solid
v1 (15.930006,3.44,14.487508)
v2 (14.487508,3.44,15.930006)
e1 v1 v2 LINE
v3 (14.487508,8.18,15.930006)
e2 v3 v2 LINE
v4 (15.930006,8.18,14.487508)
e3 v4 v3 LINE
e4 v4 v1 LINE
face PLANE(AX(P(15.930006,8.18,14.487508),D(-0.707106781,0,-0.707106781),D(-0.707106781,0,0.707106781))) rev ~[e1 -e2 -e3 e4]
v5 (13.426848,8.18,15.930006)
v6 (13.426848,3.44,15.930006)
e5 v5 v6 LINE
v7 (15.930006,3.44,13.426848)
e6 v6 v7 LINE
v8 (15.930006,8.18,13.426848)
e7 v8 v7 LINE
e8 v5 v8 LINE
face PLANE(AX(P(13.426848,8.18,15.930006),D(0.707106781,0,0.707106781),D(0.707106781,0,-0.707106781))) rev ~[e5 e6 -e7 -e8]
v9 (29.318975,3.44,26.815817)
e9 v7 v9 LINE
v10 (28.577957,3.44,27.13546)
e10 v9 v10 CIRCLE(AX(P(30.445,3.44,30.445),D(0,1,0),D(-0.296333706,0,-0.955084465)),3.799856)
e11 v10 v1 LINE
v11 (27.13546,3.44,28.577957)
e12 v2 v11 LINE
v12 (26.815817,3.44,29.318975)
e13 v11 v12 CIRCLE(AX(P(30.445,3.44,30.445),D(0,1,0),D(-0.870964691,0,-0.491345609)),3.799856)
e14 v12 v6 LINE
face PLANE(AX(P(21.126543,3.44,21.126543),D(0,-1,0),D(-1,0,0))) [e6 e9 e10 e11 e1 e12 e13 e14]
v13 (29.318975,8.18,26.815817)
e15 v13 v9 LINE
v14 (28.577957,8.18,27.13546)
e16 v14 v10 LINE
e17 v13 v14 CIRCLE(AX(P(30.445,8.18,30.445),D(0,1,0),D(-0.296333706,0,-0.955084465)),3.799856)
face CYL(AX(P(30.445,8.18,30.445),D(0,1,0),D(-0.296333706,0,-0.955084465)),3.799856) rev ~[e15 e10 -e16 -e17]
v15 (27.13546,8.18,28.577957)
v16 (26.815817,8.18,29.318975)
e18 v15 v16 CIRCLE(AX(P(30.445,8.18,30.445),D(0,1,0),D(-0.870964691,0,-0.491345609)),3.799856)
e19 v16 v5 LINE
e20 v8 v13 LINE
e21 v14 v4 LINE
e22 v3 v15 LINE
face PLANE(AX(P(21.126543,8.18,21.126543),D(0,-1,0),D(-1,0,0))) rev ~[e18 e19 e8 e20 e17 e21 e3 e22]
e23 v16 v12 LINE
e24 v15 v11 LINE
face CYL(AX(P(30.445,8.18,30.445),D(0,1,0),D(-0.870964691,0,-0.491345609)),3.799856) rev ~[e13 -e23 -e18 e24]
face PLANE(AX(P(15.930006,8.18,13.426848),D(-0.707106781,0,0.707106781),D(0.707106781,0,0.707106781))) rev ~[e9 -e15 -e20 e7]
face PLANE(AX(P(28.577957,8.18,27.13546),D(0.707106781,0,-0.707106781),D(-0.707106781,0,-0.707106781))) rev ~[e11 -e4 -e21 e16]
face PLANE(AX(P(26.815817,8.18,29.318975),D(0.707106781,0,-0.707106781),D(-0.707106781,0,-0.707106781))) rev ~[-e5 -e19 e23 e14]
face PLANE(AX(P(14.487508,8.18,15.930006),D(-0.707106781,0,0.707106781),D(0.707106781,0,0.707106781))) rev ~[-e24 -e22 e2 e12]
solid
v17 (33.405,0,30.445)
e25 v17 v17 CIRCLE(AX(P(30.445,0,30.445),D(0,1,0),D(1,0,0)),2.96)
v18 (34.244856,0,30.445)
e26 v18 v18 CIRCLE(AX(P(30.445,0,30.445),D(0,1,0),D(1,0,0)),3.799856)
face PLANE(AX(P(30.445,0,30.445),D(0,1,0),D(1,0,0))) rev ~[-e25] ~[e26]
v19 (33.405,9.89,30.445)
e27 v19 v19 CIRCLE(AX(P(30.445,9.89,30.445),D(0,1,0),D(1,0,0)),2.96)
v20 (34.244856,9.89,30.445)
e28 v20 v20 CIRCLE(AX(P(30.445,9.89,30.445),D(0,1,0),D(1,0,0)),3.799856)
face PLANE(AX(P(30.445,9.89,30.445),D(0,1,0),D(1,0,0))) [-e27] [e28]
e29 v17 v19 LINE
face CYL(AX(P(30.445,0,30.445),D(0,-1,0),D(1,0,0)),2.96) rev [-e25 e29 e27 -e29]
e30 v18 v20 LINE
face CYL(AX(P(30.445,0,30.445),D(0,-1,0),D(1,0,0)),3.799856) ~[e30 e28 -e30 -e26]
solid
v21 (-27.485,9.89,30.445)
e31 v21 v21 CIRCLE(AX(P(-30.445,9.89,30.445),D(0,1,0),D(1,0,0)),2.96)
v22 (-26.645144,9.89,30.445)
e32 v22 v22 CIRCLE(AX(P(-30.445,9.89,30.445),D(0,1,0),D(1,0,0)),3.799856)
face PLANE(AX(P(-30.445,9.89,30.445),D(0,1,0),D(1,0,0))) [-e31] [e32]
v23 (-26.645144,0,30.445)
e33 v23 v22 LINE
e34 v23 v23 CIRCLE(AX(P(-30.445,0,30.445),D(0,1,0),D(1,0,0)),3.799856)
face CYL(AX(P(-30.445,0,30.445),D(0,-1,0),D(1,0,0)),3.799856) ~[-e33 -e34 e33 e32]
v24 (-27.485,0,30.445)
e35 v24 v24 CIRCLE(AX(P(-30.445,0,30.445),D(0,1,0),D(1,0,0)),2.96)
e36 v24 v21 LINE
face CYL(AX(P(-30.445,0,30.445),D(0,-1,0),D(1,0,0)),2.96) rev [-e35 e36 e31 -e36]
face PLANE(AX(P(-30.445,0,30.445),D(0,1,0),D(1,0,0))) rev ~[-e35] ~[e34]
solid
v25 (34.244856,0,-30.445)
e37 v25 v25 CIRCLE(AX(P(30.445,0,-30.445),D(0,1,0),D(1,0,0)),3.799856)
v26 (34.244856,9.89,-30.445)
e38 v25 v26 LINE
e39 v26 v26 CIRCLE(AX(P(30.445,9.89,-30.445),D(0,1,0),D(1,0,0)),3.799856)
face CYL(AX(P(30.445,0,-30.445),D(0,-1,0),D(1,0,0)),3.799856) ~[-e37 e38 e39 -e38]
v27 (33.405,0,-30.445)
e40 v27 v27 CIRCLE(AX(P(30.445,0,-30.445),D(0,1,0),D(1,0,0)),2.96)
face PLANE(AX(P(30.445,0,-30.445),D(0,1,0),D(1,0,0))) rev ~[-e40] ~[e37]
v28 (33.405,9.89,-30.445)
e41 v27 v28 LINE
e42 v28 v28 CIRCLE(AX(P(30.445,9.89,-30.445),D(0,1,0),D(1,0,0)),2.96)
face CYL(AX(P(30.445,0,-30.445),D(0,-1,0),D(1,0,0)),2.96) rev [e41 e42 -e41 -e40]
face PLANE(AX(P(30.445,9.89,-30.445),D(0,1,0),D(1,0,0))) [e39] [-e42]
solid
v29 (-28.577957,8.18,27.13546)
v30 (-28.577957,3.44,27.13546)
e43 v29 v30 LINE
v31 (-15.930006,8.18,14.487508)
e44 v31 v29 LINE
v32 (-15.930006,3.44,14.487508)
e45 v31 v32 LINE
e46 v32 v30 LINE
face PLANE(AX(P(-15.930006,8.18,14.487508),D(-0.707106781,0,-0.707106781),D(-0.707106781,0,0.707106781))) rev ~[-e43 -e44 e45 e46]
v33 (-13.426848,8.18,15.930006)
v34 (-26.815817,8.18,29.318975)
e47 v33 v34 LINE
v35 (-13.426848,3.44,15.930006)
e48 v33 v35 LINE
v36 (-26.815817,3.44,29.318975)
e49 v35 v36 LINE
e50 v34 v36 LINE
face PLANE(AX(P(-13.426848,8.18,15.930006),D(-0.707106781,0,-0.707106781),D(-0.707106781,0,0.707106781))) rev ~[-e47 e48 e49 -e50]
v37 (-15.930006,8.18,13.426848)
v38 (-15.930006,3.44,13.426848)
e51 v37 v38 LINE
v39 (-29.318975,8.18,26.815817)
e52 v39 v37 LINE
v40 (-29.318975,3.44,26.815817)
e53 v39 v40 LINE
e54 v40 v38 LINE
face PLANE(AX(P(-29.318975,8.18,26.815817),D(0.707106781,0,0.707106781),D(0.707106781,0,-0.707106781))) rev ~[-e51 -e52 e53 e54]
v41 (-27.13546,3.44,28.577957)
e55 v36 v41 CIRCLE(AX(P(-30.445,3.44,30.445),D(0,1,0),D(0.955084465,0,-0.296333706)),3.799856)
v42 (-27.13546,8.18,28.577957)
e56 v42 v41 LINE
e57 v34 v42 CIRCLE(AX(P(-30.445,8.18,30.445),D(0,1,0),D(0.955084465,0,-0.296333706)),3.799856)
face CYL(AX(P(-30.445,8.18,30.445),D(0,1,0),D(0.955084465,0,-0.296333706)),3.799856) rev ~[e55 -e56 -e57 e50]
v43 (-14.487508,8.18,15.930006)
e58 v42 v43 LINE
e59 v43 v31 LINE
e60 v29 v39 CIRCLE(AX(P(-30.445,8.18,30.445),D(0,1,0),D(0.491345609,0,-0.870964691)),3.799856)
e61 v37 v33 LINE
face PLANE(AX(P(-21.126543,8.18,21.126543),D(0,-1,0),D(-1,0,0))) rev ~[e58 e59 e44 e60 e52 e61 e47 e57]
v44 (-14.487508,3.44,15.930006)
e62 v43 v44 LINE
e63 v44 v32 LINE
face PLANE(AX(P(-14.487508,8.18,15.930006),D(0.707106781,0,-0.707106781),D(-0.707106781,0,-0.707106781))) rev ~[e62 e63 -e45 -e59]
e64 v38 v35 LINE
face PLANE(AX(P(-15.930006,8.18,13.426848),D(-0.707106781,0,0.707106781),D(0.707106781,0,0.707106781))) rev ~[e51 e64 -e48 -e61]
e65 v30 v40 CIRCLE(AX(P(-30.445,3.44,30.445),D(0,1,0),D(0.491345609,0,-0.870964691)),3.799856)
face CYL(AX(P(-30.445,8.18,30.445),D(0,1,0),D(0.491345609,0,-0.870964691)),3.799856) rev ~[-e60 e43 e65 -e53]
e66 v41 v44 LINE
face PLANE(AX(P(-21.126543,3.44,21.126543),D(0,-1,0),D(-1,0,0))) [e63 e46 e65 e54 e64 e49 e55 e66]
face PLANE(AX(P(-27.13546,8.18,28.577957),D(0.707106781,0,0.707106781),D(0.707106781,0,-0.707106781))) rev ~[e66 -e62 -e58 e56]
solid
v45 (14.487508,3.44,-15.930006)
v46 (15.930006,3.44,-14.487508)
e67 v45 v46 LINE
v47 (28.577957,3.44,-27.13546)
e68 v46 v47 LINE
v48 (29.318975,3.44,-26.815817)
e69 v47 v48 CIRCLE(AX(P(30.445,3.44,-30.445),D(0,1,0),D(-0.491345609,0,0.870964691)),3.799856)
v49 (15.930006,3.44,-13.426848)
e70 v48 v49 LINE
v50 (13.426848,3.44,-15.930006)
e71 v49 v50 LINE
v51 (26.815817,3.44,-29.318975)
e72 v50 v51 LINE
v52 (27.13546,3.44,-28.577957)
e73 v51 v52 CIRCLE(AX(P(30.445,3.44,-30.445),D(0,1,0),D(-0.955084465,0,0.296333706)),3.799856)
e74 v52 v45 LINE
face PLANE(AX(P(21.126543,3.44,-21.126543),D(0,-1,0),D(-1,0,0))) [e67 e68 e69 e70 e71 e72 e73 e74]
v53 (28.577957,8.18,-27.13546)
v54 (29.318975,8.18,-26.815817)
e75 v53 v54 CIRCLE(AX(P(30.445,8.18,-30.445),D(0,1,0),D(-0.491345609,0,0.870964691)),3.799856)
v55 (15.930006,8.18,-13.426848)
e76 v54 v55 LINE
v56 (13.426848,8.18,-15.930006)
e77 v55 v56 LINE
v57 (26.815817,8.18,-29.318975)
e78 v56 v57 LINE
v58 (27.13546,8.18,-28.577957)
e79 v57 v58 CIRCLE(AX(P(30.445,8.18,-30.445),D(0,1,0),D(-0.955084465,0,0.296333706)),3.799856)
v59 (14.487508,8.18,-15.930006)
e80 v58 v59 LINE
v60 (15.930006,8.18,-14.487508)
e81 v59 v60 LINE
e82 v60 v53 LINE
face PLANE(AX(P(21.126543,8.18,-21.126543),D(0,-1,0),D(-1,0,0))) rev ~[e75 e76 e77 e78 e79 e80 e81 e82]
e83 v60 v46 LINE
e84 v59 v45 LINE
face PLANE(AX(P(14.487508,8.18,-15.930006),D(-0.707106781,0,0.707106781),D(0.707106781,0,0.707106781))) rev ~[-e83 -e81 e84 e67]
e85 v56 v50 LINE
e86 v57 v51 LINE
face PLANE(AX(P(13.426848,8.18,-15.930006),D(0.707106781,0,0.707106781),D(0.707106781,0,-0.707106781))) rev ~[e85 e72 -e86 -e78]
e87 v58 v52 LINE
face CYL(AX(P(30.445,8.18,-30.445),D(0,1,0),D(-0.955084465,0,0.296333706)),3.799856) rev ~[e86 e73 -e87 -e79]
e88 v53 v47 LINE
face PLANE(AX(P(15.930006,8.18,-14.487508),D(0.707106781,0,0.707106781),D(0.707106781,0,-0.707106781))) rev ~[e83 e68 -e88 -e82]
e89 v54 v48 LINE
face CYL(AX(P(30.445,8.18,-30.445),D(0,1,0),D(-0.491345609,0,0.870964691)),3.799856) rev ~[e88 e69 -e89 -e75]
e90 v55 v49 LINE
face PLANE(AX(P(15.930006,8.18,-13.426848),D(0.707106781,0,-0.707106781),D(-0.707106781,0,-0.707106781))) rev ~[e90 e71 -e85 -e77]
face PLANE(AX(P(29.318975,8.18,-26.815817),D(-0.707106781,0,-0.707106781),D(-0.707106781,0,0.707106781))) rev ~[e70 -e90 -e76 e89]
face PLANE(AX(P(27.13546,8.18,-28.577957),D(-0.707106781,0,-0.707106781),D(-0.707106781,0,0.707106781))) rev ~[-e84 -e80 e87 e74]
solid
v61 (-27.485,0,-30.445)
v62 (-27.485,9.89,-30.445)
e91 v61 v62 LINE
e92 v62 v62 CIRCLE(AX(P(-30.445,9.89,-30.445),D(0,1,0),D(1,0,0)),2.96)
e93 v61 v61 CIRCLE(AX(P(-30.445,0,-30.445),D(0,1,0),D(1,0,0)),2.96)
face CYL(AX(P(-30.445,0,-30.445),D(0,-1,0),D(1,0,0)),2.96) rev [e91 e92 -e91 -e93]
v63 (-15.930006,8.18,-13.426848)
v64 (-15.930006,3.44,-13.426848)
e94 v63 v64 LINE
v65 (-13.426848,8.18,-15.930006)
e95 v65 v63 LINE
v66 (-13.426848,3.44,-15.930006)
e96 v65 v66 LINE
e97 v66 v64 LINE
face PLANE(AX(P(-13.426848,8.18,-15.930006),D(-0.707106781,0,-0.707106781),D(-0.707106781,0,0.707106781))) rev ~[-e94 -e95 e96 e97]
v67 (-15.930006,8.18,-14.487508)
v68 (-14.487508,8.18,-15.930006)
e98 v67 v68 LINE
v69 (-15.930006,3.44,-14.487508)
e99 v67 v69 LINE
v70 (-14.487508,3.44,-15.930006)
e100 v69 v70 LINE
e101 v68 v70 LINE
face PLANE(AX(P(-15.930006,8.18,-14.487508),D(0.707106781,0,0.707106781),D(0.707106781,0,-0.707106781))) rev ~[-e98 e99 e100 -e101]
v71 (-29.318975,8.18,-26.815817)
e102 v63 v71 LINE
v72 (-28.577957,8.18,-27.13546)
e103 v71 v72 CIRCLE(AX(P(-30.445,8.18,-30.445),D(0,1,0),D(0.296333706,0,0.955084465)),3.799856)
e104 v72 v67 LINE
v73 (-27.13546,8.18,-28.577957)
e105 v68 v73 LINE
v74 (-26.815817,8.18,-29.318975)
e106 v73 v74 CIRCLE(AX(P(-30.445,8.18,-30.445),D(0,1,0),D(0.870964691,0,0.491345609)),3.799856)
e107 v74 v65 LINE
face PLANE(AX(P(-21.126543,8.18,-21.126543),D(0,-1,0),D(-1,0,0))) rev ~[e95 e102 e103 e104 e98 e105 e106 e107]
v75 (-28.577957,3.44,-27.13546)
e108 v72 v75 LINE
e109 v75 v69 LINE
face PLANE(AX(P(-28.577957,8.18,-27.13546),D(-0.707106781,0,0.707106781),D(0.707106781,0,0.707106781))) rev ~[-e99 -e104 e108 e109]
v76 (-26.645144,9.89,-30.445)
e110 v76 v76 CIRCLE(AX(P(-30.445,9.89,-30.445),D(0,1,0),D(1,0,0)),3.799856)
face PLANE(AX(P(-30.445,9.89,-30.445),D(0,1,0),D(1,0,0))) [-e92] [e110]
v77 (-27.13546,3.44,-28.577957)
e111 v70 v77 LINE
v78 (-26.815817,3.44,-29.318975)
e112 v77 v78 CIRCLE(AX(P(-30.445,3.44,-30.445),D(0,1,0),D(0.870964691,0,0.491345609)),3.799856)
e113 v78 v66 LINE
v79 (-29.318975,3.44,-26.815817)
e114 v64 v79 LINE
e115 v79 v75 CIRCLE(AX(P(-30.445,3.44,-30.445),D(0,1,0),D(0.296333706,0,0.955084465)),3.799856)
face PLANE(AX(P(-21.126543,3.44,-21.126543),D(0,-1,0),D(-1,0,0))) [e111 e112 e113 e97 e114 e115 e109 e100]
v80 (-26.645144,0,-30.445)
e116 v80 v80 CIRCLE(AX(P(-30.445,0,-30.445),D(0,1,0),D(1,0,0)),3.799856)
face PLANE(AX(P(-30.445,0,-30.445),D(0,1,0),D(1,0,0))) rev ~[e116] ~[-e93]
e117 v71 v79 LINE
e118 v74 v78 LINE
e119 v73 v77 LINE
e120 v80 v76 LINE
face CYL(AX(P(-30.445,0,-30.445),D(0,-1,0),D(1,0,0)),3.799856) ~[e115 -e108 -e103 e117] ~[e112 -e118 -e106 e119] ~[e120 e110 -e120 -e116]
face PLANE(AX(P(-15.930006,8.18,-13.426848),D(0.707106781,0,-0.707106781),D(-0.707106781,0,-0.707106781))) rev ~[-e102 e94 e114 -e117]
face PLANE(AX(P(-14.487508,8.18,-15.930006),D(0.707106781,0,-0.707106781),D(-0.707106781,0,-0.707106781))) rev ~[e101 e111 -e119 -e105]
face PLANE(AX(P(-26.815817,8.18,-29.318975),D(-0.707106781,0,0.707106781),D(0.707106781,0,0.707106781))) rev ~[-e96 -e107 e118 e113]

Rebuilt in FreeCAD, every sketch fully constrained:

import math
import FreeCAD as App
import Part
import Sketcher

V = App.Vector

doc = App.newDocument("Part")
body = doc.addObject("PartDesign::Body", "Body")

# Sketch on XZ plane
sketch1 = doc.addObject("Sketcher::SketchObject", "Sketch")
body.addObject(sketch1)
sketch1.AttachmentSupport = (doc.XZ_Plane, [""])
sketch1.MapMode = "FlatFace"
sketch1.addGeometry([
    Part.Circle(V(-30.4, 30.4, 0), V(0, 0, 1), 3.8),
    Part.Circle(V(-30.4, 30.4, 0), V(0, 0, 1), 3),
], False)
sketch1.addConstraint([
    Sketcher.Constraint("Coincident", 1, 3, 0, 3),
    Sketcher.Constraint("Diameter", 1, 5.92),
    Sketcher.Constraint("Diameter", 0, 7.599712),
    Sketcher.Constraint("DistanceX", 0, 3, -1, 1, 30.445),
    Sketcher.Constraint("DistanceY", -1, 1, 0, 3, 30.445),
])
pad1 = doc.addObject("PartDesign::Pad", "Pad")
body.addObject(pad1)
pad1.Profile = sketch1
pad1.Length = 9.89
pad1.Reversed = True
body2 = doc.addObject("PartDesign::Body", "Body001")
body2.AllowCompound = True

# Sketch on XZ plane
sketch2 = doc.addObject("Sketcher::SketchObject", "Sketch001")
body2.addObject(sketch2)
sketch2.AttachmentSupport = (doc.getObject("XZ_Plane001"), [""])
sketch2.MapMode = "FlatFace"
sketch2.addGeometry([
    Part.Circle(V(-30.4, -30.4, 0), V(0, 0, 1), 3.8),
    Part.Circle(V(-30.4, -30.4, 0), V(0, 0, 1), 3),
], False)
sketch2.addConstraint([
    Sketcher.Constraint("Coincident", 1, 3, 0, 3),
    Sketcher.Constraint("Diameter", 1, 5.92),
    Sketcher.Constraint("Diameter", 0, 7.599712),
    Sketcher.Constraint("DistanceX", 0, 3, -1, 1, 30.445),
    Sketcher.Constraint("DistanceY", 0, 3, -1, 1, 30.445),
])
pad2 = doc.addObject("PartDesign::Pad", "Pad001")
body2.addObject(pad2)
pad2.Profile = sketch2
pad2.Length = 9.89
pad2.Reversed = True

# Sketch on XZ plane
sketch3 = doc.addObject("Sketcher::SketchObject", "Sketch002")
body2.addObject(sketch3)
sketch3.AttachmentSupport = (doc.getObject("XZ_Plane001"), [""])
sketch3.MapMode = "FlatFace"
sketch3.AttachmentOffset = App.Placement(V(0, 0, -8.18), App.Rotation())
sketch3.addGeometry([
    Part.LineSegment(V(-13.4, -15.9, 0), V(-26.8, -29.3, 0)),  # 0
    Part.ArcOfCircle(Part.Circle(V(-30.4, -30.4, 0), V(0, 0, 1), 3.8), math.radians(17.24), math.radians(29.43)),  # 1
    Part.LineSegment(V(-27.1, -28.6, 0), V(-14.5, -15.9, 0)),  # 2
    Part.LineSegment(V(-14.5, -15.9, 0), V(-15.9, -14.5, 0)),  # 3
    Part.LineSegment(V(-15.9, -14.5, 0), V(-28.6, -27.1, 0)),  # 4
    Part.ArcOfCircle(Part.Circle(V(-30.4, -30.4, 0), V(0, 0, 1), 3.8), math.radians(60.57), math.radians(72.76)),  # 5
    Part.LineSegment(V(-29.3, -26.8, 0), V(-15.9, -13.4, 0)),  # 6
    Part.LineSegment(V(-15.9, -13.4, 0), V(-13.4, -15.9, 0)),  # 7
    Part.LineSegment(V(15.9, -13.4, 0), V(29.3, -26.8, 0)),  # 8
    Part.ArcOfCircle(Part.Circle(V(30.4, -30.4, 0), V(0, 0, 1), 3.8), math.radians(107.24), math.radians(119.43)),  # 9
    Part.LineSegment(V(28.6, -27.1, 0), V(15.9, -14.5, 0)),  # 10
    Part.LineSegment(V(15.9, -14.5, 0), V(14.5, -15.9, 0)),  # 11
    Part.LineSegment(V(14.5, -15.9, 0), V(27.1, -28.6, 0)),  # 12
    Part.ArcOfCircle(Part.Circle(V(30.4, -30.4, 0), V(0, 0, 1), 3.8), math.radians(150.57), math.radians(162.76)),  # 13
    Part.LineSegment(V(26.8, -29.3, 0), V(13.4, -15.9, 0)),  # 14
    Part.LineSegment(V(13.4, -15.9, 0), V(15.9, -13.4, 0)),  # 15
    Part.LineSegment(V(13.4, 15.9, 0), V(26.8, 29.3, 0)),  # 16
    Part.ArcOfCircle(Part.Circle(V(30.4, 30.4, 0), V(0, 0, 1), 3.8), math.radians(-162.76), math.radians(-150.57)),  # 17
    Part.LineSegment(V(27.1, 28.6, 0), V(14.5, 15.9, 0)),  # 18
    Part.LineSegment(V(14.5, 15.9, 0), V(15.9, 14.5, 0)),  # 19
    Part.LineSegment(V(15.9, 14.5, 0), V(28.6, 27.1, 0)),  # 20
    Part.ArcOfCircle(Part.Circle(V(30.4, 30.4, 0), V(0, 0, 1), 3.8), math.radians(-119.43), math.radians(-107.24)),  # 21
    Part.LineSegment(V(29.3, 26.8, 0), V(15.9, 13.4, 0)),  # 22
    Part.LineSegment(V(15.9, 13.4, 0), V(13.4, 15.9, 0)),  # 23
    Part.LineSegment(V(-15.9, 13.4, 0), V(-29.3, 26.8, 0)),  # 24
    Part.ArcOfCircle(Part.Circle(V(-30.4, 30.4, 0), V(0, 0, 1), 3.8), math.radians(-72.76), math.radians(-60.57)),  # 25
    Part.LineSegment(V(-28.6, 27.1, 0), V(-15.9, 14.5, 0)),  # 26
    Part.LineSegment(V(-15.9, 14.5, 0), V(-14.5, 15.9, 0)),  # 27
    Part.LineSegment(V(-14.5, 15.9, 0), V(-27.1, 28.6, 0)),  # 28
    Part.ArcOfCircle(Part.Circle(V(-30.4, 30.4, 0), V(0, 0, 1), 3.8), math.radians(-29.43), math.radians(-17.24)),  # 29
    Part.LineSegment(V(-26.8, 29.3, 0), V(-13.4, 15.9, 0)),  # 30
    Part.LineSegment(V(-13.4, 15.9, 0), V(-15.9, 13.4, 0)),  # 31
], False)
sketch3.addConstraint([
    Sketcher.Constraint("Coincident", 0, 2, 1, 1),
    Sketcher.Constraint("Coincident", 1, 2, 2, 1),
    Sketcher.Constraint("Coincident", 2, 2, 3, 1),
    Sketcher.Constraint("Coincident", 3, 2, 4, 1),
    Sketcher.Constraint("Coincident", 4, 2, 5, 1),
    Sketcher.Constraint("Coincident", 5, 2, 6, 1),
    Sketcher.Constraint("Coincident", 6, 2, 7, 1),
    Sketcher.Constraint("Coincident", 7, 2, 0, 1),
    Sketcher.Constraint("Coincident", 8, 2, 9, 1),
    Sketcher.Constraint("Coincident", 9, 2, 10, 1),
    Sketcher.Constraint("Coincident", 10, 2, 11, 1),
    Sketcher.Constraint("Coincident", 11, 2, 12, 1),
    Sketcher.Constraint("Coincident", 12, 2, 13, 1),
    Sketcher.Constraint("Coincident", 13, 2, 14, 1),
    Sketcher.Constraint("Coincident", 14, 2, 15, 1),
    Sketcher.Constraint("Coincident", 15, 2, 8, 1),
    Sketcher.Constraint("Coincident", 16, 2, 17, 1),
    Sketcher.Constraint("Coincident", 17, 2, 18, 1),
    Sketcher.Constraint("Coincident", 18, 2, 19, 1),
    Sketcher.Constraint("Coincident", 19, 2, 20, 1),
    Sketcher.Constraint("Coincident", 20, 2, 21, 1),
    Sketcher.Constraint("Coincident", 21, 2, 22, 1),
    Sketcher.Constraint("Coincident", 22, 2, 23, 1),
    Sketcher.Constraint("Coincident", 23, 2, 16, 1),
    Sketcher.Constraint("Coincident", 24, 2, 25, 1),
    Sketcher.Constraint("Coincident", 25, 2, 26, 1),
    Sketcher.Constraint("Coincident", 26, 2, 27, 1),
    Sketcher.Constraint("Coincident", 27, 2, 28, 1),
    Sketcher.Constraint("Coincident", 28, 2, 29, 1),
    Sketcher.Constraint("Coincident", 29, 2, 30, 1),
    Sketcher.Constraint("Coincident", 30, 2, 31, 1),
    Sketcher.Constraint("Coincident", 31, 2, 24, 1),
    Sketcher.Constraint("Coincident", 5, 3, 1, 3),
    Sketcher.Constraint("Coincident", 13, 3, 9, 3),
    Sketcher.Constraint("Coincident", 21, 3, 17, 3),
    Sketcher.Constraint("Coincident", 29, 3, 25, 3),
    Sketcher.Constraint("Equal", 1, 5),
    Sketcher.Constraint("Equal", 5, 9),
    Sketcher.Constraint("Equal", 9, 13),
    Sketcher.Constraint("Equal", 13, 17),
    Sketcher.Constraint("Equal", 17, 21),
    Sketcher.Constraint("Equal", 21, 25),
    Sketcher.Constraint("Equal", 25, 29),
    Sketcher.Constraint("Symmetric", 1, 3, 17, 3, -1, 1),
    Sketcher.Constraint("Symmetric", 9, 3, 25, 3, -1, 1),
    Sketcher.Constraint("Symmetric", 2, 2, 18, 2, -1, 1),
    Sketcher.Constraint("Symmetric", 3, 2, 19, 2, -1, 1),
    Sketcher.Constraint("Symmetric", 6, 2, 22, 2, -1, 1),
    Sketcher.Constraint("Symmetric", 7, 2, 23, 2, -1, 1),
    Sketcher.Constraint("Symmetric", 10, 2, 26, 2, -1, 1),
    Sketcher.Constraint("Symmetric", 11, 2, 27, 2, -1, 1),
    Sketcher.Constraint("Symmetric", 14, 2, 30, 2, -1, 1),
    Sketcher.Constraint("Symmetric", 15, 2, 31, 2, -1, 1),
    Sketcher.Constraint("Symmetric", 1, 3, 9, 3, -2),
    Sketcher.Constraint("Symmetric", 3, 2, 10, 2, -2),
    Sketcher.Constraint("Symmetric", 2, 2, 11, 2, -2),
    Sketcher.Constraint("Symmetric", 7, 2, 14, 2, -2),
    Sketcher.Constraint("Symmetric", 6, 2, 15, 2, -2),
    Sketcher.Constraint("Parallel", 0, 2),
    Sketcher.Constraint("Perpendicular", 2, 3),
    Sketcher.Constraint("Perpendicular", 3, 4),
    Sketcher.Constraint("Parallel", 4, 6),
    Sketcher.Constraint("Perpendicular", 6, 7),
    Sketcher.Constraint("Parallel", 7, 8),
    Sketcher.Constraint("Parallel", 8, 10),
    Sketcher.Constraint("Perpendicular", 10, 11),
    Sketcher.Constraint("Perpendicular", 11, 12),
    Sketcher.Constraint("Parallel", 12, 14),
    Sketcher.Constraint("Parallel", 15, 16),
    Sketcher.Constraint("Parallel", 16, 18),
    Sketcher.Constraint("Perpendicular", 19, 20),
    Sketcher.Constraint("Parallel", 20, 22),
    Sketcher.Constraint("Parallel", 23, 24),
    Sketcher.Constraint("Parallel", 24, 26),
    Sketcher.Constraint("Perpendicular", 27, 28),
    Sketcher.Constraint("Parallel", 28, 30),
    Sketcher.Constraint("Horizontal", 2, 2, 7, 2),
    Sketcher.Constraint("Vertical", 3, 2, 6, 2),
    Sketcher.Constraint("Equal", 2, 4),
    Sketcher.Constraint("Distance", 3, 2.04),
    Sketcher.Constraint("Distance", 7, 3.54),
    Sketcher.Constraint("DistanceX", 1, 3, 9, 3, 60.89),
    Sketcher.Constraint("DistanceY", 9, 3, 17, 3, 60.89),
    Sketcher.Constraint("Radius", 1, 3.799856),
    Sketcher.Constraint("Distance", 0, 18.934861),
])
pad3 = doc.addObject("PartDesign::Pad", "Pad002")
body2.addObject(pad3)
pad3.Profile = sketch3
pad3.Length = 4.74
body3 = doc.addObject("PartDesign::Body", "Body002")

# Sketch on XZ plane
sketch4 = doc.addObject("Sketcher::SketchObject", "Sketch003")
body3.addObject(sketch4)
sketch4.AttachmentSupport = (doc.getObject("XZ_Plane002"), [""])
sketch4.MapMode = "FlatFace"
sketch4.addGeometry([
    Part.Circle(V(30.4, -30.4, 0), V(0, 0, 1), 3.8),
    Part.Circle(V(30.4, -30.4, 0), V(0, 0, 1), 3),
], False)
sketch4.addConstraint([
    Sketcher.Constraint("Coincident", 1, 3, 0, 3),
    Sketcher.Constraint("Diameter", 1, 5.92),
    Sketcher.Constraint("Diameter", 0, 7.599712),
    Sketcher.Constraint("DistanceX", -1, 1, 0, 3, 30.445),
    Sketcher.Constraint("DistanceY", 0, 3, -1, 1, 30.445),
])
pad4 = doc.addObject("PartDesign::Pad", "Pad003")
body3.addObject(pad4)
pad4.Profile = sketch4
pad4.Length = 9.89
pad4.Reversed = True
body4 = doc.addObject("PartDesign::Body", "Body003")

# Sketch on XZ plane
sketch5 = doc.addObject("Sketcher::SketchObject", "Sketch004")
body4.addObject(sketch5)
sketch5.AttachmentSupport = (doc.getObject("XZ_Plane003"), [""])
sketch5.MapMode = "FlatFace"
sketch5.addGeometry([
    Part.Circle(V(30.4, 30.4, 0), V(0, 0, 1), 3.8),
    Part.Circle(V(30.4, 30.4, 0), V(0, 0, 1), 3),
], False)
sketch5.addConstraint([
    Sketcher.Constraint("Coincident", 1, 3, 0, 3),
    Sketcher.Constraint("Diameter", 1, 5.92),
    Sketcher.Constraint("Diameter", 0, 7.599712),
    Sketcher.Constraint("DistanceX", -1, 1, 0, 3, 30.445),
    Sketcher.Constraint("DistanceY", -1, 1, 0, 3, 30.445),
])
pad5 = doc.addObject("PartDesign::Pad", "Pad004")
body4.addObject(pad5)
pad5.Profile = sketch5
pad5.Length = 9.89
pad5.Reversed = True

doc.recompute()
